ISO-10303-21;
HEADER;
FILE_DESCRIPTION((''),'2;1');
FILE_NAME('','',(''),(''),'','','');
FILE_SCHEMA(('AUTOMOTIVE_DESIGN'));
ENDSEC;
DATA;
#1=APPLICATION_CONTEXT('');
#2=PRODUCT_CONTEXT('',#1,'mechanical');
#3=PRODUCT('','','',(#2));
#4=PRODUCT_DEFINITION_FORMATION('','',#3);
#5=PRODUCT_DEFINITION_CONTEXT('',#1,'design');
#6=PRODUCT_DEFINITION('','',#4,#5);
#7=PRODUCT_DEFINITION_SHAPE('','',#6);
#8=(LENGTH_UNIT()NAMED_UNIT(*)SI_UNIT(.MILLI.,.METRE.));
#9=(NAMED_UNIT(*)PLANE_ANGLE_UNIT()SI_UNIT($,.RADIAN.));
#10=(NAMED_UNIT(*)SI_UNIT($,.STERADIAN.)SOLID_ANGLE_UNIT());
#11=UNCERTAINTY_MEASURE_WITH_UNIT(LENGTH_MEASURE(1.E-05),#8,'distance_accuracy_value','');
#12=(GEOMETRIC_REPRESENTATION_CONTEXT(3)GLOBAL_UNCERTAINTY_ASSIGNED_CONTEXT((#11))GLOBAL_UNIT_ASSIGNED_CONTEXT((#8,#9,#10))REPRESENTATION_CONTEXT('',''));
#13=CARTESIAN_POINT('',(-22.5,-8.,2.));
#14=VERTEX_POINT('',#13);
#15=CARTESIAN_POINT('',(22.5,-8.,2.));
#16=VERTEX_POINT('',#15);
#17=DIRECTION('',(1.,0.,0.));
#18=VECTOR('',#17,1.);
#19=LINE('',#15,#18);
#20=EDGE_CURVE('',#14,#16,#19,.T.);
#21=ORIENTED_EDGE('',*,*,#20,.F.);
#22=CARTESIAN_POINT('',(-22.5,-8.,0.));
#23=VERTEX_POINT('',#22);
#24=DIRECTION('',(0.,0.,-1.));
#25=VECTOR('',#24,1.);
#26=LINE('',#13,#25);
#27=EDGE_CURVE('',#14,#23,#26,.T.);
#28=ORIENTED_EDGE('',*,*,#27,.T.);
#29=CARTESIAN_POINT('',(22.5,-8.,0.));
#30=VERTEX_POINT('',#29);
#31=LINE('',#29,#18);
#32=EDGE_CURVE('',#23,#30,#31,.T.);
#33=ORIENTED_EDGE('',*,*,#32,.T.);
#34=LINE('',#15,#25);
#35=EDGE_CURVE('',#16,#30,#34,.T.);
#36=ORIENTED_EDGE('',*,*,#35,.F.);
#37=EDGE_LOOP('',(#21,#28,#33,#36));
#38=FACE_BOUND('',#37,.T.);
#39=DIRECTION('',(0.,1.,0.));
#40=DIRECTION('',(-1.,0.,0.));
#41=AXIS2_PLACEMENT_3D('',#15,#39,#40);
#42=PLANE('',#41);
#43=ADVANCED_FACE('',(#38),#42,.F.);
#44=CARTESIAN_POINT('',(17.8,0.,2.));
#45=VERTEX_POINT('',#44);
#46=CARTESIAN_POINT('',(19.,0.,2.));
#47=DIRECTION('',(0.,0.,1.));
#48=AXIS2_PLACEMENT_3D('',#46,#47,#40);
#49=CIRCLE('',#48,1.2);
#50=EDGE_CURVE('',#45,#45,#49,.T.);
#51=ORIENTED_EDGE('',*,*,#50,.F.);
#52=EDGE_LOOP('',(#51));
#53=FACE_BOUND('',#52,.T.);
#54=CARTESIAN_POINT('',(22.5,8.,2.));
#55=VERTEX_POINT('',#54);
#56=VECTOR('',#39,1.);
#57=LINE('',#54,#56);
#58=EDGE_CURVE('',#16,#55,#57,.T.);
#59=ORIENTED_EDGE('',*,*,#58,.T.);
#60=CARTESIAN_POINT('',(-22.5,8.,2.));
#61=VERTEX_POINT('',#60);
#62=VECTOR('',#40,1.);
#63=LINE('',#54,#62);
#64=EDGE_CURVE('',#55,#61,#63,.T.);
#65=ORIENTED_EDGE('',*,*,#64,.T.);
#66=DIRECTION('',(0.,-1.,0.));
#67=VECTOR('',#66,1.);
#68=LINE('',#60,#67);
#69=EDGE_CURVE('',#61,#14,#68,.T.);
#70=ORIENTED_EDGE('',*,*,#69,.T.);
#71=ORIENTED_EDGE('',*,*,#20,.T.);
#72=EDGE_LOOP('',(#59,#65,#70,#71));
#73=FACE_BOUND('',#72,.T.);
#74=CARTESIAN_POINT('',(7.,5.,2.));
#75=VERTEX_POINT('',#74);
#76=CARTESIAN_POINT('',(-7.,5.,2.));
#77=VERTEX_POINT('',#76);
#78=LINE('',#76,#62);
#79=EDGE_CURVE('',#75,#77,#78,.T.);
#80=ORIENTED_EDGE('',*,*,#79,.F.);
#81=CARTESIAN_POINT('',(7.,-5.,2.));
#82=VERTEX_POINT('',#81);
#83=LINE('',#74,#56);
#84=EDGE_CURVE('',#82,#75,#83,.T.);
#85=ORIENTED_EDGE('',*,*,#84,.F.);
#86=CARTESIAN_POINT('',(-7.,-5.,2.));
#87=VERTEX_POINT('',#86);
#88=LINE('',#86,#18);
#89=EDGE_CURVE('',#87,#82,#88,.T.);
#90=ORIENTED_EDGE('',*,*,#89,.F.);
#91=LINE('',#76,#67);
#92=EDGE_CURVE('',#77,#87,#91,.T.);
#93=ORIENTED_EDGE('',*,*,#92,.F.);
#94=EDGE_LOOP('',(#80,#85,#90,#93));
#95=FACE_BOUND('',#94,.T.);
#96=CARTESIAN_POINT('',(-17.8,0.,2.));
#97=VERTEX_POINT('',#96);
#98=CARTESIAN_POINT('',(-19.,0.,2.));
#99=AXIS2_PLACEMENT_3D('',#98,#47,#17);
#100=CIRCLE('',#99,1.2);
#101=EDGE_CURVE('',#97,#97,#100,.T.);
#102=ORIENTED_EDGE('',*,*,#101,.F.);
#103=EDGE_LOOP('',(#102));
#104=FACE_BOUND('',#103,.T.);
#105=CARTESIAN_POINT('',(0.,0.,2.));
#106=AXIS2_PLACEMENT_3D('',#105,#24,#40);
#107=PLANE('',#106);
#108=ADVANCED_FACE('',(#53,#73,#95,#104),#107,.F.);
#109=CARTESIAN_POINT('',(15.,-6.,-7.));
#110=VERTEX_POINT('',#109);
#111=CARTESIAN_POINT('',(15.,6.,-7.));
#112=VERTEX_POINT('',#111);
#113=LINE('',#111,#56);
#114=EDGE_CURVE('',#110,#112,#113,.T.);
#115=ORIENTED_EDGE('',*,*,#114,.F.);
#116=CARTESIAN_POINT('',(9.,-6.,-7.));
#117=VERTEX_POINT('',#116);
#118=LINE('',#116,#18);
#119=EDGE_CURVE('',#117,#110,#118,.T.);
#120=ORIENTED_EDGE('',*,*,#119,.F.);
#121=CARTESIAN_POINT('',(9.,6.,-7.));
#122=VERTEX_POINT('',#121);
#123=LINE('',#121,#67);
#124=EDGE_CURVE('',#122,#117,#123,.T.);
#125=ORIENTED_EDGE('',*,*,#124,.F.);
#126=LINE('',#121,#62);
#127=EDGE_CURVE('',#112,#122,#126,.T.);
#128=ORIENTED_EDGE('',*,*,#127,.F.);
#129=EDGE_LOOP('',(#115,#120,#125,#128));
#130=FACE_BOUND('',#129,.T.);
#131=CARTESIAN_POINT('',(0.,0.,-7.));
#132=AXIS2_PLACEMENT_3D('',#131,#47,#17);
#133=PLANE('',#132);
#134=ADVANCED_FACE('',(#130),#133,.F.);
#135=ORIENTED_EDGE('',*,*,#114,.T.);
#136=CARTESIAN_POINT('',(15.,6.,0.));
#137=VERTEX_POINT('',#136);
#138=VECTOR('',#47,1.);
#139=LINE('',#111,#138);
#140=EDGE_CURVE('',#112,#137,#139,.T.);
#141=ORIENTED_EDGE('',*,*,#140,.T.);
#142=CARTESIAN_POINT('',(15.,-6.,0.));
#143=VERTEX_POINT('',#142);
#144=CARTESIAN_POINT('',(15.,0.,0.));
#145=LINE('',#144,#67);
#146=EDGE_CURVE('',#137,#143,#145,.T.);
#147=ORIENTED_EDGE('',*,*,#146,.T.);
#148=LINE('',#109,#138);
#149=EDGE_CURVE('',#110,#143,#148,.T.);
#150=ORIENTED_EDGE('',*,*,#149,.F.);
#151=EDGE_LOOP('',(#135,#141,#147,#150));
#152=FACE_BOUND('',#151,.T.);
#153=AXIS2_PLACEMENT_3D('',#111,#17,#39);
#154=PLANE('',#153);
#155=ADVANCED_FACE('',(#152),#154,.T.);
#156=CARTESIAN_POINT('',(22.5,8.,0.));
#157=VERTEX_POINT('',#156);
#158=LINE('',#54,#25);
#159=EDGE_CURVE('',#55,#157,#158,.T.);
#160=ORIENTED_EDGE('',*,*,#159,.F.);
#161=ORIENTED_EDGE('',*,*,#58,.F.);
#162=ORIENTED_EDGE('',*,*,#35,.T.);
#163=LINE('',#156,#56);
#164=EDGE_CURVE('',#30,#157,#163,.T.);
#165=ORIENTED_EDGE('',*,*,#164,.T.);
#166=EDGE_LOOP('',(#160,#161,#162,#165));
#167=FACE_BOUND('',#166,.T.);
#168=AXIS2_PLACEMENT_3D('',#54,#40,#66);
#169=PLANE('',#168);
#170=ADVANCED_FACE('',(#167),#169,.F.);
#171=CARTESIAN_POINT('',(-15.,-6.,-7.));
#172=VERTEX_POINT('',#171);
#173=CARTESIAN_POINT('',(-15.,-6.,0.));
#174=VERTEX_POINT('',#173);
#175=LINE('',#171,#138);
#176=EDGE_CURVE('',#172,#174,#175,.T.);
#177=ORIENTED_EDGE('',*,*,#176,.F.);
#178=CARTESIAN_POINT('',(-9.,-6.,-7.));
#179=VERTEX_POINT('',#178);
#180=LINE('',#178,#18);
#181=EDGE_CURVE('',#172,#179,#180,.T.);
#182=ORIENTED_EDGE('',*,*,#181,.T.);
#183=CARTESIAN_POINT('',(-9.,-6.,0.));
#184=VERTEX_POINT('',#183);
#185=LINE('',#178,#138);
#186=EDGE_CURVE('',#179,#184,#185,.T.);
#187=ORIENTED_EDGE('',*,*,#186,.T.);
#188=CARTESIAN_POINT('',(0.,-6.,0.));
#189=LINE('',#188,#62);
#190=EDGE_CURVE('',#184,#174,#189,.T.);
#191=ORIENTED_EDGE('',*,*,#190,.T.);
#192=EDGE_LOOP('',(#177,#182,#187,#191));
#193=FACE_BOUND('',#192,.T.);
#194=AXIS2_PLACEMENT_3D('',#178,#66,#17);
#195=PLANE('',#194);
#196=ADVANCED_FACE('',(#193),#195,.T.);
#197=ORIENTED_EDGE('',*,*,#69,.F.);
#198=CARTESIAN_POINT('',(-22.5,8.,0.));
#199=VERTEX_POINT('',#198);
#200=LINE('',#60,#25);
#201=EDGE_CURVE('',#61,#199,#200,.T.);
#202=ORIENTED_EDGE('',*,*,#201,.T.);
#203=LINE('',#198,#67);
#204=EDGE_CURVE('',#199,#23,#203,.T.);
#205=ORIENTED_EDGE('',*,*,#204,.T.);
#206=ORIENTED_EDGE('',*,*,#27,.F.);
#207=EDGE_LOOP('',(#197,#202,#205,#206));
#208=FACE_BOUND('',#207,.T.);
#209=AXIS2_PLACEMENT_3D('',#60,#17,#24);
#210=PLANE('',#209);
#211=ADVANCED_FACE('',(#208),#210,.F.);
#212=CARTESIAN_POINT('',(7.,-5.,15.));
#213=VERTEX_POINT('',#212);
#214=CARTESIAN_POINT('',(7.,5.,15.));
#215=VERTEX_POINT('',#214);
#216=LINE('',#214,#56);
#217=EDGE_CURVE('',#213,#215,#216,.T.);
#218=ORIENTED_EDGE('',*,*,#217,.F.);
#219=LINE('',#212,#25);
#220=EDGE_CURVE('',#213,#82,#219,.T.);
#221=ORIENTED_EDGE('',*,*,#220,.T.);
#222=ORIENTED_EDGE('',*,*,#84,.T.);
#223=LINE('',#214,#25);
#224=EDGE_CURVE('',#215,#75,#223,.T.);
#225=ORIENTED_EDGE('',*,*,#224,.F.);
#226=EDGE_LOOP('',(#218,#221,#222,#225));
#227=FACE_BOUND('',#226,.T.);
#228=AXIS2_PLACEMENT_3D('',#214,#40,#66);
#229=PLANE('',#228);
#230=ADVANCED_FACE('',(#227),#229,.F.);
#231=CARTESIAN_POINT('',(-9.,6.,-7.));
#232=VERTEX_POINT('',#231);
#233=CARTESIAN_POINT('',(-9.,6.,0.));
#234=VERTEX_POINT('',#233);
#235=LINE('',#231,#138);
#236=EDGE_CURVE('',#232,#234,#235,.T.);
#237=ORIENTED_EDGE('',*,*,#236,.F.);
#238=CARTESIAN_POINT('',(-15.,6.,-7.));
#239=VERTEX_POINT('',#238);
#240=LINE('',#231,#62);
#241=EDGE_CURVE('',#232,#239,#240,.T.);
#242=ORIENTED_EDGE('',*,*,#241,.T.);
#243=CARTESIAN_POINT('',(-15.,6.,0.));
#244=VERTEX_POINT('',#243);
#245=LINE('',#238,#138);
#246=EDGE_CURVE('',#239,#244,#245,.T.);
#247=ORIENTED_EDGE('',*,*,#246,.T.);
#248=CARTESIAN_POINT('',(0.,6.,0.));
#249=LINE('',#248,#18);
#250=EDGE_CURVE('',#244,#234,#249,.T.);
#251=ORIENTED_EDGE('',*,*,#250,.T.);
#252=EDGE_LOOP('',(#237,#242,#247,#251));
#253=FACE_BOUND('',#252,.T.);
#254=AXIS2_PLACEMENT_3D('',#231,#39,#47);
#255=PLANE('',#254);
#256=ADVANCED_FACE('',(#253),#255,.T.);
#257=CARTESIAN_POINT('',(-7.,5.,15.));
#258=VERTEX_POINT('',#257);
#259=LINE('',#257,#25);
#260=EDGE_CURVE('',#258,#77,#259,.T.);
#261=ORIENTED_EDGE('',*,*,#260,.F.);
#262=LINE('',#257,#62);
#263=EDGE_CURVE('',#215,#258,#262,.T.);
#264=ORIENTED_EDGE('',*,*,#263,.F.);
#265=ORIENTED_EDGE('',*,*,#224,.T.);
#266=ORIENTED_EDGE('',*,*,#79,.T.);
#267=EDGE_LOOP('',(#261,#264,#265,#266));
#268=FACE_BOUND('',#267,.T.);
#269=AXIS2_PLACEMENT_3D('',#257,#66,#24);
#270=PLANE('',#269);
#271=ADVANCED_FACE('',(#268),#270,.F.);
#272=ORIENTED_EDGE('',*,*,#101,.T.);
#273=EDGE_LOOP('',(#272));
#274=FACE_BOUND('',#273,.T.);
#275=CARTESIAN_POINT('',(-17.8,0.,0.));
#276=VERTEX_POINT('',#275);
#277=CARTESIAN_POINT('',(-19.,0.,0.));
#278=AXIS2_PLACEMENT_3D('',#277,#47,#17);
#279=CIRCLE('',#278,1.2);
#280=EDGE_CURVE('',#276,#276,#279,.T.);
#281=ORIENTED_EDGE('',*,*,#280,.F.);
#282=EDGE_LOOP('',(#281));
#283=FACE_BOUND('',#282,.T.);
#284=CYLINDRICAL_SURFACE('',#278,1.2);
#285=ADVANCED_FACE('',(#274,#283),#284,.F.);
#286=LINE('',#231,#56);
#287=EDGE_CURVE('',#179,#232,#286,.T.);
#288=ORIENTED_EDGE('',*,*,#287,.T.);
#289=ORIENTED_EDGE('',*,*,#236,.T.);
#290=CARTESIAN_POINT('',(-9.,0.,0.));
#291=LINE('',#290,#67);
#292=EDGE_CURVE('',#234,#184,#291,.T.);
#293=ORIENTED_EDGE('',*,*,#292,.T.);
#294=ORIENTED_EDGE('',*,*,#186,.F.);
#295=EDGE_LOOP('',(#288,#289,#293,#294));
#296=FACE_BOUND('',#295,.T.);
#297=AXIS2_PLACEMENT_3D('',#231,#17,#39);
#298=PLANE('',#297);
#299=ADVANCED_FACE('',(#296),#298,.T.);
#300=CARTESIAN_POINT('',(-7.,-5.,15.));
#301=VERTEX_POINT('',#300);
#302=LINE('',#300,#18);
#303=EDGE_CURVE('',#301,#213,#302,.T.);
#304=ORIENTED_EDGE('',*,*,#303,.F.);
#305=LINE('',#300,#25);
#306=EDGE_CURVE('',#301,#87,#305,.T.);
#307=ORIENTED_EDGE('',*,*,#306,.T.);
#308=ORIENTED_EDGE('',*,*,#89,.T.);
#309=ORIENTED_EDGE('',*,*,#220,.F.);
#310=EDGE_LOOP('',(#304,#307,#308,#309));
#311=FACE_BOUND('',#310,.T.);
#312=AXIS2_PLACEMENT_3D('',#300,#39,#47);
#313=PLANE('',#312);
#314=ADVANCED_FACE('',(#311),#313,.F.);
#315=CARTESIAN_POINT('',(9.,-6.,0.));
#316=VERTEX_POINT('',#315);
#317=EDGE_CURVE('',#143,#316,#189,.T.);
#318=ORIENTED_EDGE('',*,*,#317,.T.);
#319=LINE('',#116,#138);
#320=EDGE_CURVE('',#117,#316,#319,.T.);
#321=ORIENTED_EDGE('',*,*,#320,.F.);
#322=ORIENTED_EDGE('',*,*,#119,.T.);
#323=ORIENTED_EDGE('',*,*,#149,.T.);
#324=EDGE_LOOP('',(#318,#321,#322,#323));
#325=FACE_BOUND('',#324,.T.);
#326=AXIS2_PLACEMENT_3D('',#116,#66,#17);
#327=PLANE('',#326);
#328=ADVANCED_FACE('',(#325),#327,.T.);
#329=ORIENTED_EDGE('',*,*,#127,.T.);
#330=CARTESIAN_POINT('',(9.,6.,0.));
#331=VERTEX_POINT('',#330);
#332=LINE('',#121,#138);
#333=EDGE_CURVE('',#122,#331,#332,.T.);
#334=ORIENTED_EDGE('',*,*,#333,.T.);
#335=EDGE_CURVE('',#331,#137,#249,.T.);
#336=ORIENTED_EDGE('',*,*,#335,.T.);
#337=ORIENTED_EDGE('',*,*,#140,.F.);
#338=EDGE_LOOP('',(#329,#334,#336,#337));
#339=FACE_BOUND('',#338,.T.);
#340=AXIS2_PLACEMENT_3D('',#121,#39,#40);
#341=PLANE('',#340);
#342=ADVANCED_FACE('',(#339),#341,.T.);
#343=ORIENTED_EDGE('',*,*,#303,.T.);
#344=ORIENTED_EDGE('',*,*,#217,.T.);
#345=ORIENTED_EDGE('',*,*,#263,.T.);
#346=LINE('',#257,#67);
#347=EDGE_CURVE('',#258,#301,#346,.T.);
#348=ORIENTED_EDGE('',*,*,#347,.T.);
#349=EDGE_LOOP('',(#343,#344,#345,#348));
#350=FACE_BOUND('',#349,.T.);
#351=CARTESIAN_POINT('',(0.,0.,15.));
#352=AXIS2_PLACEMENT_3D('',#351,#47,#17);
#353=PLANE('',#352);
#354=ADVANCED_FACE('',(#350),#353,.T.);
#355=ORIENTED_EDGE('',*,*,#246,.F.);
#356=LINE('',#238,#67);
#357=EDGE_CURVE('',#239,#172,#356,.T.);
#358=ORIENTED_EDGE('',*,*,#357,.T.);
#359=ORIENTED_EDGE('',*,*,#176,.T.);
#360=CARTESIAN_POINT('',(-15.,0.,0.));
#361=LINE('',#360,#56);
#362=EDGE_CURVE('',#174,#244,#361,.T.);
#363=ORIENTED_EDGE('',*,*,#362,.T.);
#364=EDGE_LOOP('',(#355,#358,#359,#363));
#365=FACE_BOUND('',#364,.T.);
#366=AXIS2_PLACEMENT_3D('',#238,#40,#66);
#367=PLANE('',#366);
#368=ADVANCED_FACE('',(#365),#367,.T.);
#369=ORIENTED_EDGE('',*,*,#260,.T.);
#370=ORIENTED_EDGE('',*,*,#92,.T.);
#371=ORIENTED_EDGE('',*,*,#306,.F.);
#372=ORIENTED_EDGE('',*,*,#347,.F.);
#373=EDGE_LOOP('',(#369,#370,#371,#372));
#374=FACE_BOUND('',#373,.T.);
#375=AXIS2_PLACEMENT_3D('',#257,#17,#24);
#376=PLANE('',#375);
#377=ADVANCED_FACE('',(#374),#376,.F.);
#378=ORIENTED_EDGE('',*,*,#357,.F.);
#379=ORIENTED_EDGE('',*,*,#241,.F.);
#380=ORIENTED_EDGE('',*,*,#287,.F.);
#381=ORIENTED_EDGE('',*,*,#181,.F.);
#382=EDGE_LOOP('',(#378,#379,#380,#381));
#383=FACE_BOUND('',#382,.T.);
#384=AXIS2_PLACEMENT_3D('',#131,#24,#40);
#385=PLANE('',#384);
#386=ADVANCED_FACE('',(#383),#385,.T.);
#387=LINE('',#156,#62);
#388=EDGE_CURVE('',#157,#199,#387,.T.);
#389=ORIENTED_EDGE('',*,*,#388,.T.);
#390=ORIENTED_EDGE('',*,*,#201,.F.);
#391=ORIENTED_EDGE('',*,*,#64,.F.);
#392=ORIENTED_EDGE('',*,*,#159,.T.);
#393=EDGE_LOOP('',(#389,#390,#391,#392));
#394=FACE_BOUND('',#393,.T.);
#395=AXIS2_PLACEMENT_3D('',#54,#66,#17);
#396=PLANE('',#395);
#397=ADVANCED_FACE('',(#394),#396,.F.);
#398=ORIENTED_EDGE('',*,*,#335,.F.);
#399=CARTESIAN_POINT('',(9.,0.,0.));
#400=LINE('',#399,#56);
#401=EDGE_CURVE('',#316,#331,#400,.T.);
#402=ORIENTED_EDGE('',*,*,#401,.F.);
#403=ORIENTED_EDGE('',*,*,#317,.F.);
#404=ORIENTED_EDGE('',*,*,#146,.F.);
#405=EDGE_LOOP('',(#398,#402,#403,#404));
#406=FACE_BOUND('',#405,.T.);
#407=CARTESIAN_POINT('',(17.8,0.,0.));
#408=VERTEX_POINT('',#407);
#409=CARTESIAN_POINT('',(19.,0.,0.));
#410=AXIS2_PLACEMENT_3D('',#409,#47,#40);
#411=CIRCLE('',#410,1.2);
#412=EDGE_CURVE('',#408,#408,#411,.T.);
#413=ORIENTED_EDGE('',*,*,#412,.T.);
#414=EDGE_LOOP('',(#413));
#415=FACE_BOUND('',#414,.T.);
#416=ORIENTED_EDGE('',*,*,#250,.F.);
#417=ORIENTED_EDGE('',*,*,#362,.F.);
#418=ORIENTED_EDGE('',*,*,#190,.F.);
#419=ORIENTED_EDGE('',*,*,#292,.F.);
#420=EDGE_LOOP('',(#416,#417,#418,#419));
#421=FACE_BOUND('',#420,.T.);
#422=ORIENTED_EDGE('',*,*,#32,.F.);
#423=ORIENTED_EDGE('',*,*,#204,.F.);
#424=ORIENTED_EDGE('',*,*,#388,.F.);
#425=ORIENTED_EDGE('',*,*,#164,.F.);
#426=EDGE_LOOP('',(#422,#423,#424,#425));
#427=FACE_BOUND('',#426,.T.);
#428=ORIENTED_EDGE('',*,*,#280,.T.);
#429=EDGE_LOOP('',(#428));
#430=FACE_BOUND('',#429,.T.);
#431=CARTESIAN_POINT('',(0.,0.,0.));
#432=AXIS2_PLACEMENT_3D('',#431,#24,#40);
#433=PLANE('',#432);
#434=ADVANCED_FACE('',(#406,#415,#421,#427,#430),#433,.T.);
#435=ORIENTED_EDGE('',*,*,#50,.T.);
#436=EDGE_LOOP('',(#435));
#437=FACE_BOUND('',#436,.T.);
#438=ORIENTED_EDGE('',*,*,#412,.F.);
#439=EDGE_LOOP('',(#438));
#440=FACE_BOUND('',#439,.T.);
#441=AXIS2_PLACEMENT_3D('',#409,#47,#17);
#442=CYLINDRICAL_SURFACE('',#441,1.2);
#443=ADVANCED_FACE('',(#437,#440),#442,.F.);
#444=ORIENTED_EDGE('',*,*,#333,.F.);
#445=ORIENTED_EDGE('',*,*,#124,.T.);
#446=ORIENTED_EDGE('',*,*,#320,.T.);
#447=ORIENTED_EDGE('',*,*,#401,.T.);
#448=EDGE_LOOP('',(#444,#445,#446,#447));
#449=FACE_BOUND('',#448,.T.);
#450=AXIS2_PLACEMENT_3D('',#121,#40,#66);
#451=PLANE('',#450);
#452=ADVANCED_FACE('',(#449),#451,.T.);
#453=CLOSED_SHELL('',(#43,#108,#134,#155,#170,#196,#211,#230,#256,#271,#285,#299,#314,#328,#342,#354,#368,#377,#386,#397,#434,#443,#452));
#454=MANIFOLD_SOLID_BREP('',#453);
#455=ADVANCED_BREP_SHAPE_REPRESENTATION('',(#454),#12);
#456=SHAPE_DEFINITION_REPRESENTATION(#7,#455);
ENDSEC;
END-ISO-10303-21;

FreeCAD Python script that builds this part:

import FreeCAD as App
import Part
import Sketcher

doc = App.newDocument("Part")
body = doc.addObject("PartDesign::Body", "Body")

# Sketch on XY plane
sketch1 = body.newObject("Sketcher::SketchObject", "Sketch")
sketch1.AttachmentSupport = (doc.getObject("XY_Plane"), [""])
sketch1.MapMode = "FlatFace"
sketch1.addGeometry(Part.LineSegment(App.Vector(-22, 8, 0), App.Vector(-22, -8, 0)), False)
sketch1.addGeometry(Part.LineSegment(App.Vector(-22, -8, 0), App.Vector(22, -8, 0)), False)
sketch1.addGeometry(Part.LineSegment(App.Vector(22, -8, 0), App.Vector(22, 8, 0)), False)
sketch1.addGeometry(Part.LineSegment(App.Vector(22, 8, 0), App.Vector(-22, 8, 0)), False)
sketch1.addConstraint(Sketcher.Constraint("Coincident", 0, 2, 1, 1))
sketch1.addConstraint(Sketcher.Constraint("Coincident", 1, 2, 2, 1))
sketch1.addConstraint(Sketcher.Constraint("Coincident", 2, 2, 3, 1))
sketch1.addConstraint(Sketcher.Constraint("Coincident", 3, 2, 0, 1))
sketch1.addConstraint(Sketcher.Constraint("Vertical", 0))
sketch1.addConstraint(Sketcher.Constraint("Horizontal", 1))
sketch1.addConstraint(Sketcher.Constraint("Vertical", 2))
sketch1.addConstraint(Sketcher.Constraint("Horizontal", 3))
sketch1.addConstraint(Sketcher.Constraint("Symmetric", 0, 2, 2, 2, -1, 1))
sketch1.addConstraint(Sketcher.Constraint("DistanceX", 1, 1, 1, 2, 45.0))
sketch1.addConstraint(Sketcher.Constraint("DistanceY", 0, 2, 0, 1, 16.0))
pad1 = body.newObject("PartDesign::Pad", "Pad")
pad1.Profile = sketch1
pad1.Length = 2

# Sketch on XY plane
sketch2 = body.newObject("Sketcher::SketchObject", "Sketch001")
sketch2.AttachmentSupport = (doc.getObject("XY_Plane"), [""])
sketch2.MapMode = "FlatFace"
sketch2.AttachmentOffset = App.Placement(App.Vector(0, 0, 2), App.Rotation())
sketch2.addGeometry(Part.Circle(App.Vector(-19, 0, 0), App.Vector(0, 0, 1), 1.2), False)
sketch2.addGeometry(Part.Circle(App.Vector(19, 0, 0), App.Vector(0, 0, 1), 1.2), False)
sketch2.addConstraint(Sketcher.Constraint("Equal", 0, 1))
sketch2.addConstraint(Sketcher.Constraint("Symmetric", 0, 3, 1, 3, -1, 1))
sketch2.addConstraint(Sketcher.Constraint("PointOnObject", 0, 3, -1))
sketch2.addConstraint(Sketcher.Constraint("Diameter", 0, 2.4))
sketch2.addConstraint(Sketcher.Constraint("DistanceX", 0, 3, -1, 1, 19.0))
pocket1 = body.newObject("PartDesign::Pocket", "Pocket")
pocket1.Profile = sketch2
pocket1.Length = 2

# Sketch on XY plane
sketch3 = body.newObject("Sketcher::SketchObject", "Sketch002")
sketch3.AttachmentSupport = (doc.getObject("XY_Plane"), [""])
sketch3.MapMode = "FlatFace"
sketch3.AttachmentOffset = App.Placement(App.Vector(0, 0, 2), App.Rotation())
sketch3.addGeometry(Part.LineSegment(App.Vector(-7, 5, 0), App.Vector(-7, -5, 0)), False)
sketch3.addGeometry(Part.LineSegment(App.Vector(-7, -5, 0), App.Vector(7, -5, 0)), False)
sketch3.addGeometry(Part.LineSegment(App.Vector(7, -5, 0), App.Vector(7, 5, 0)), False)
sketch3.addGeometry(Part.LineSegment(App.Vector(7, 5, 0), App.Vector(-7, 5, 0)), False)
sketch3.addConstraint(Sketcher.Constraint("Coincident", 0, 2, 1, 1))
sketch3.addConstraint(Sketcher.Constraint("Coincident", 1, 2, 2, 1))
sketch3.addConstraint(Sketcher.Constraint("Coincident", 2, 2, 3, 1))
sketch3.addConstraint(Sketcher.Constraint("Coincident", 3, 2, 0, 1))
sketch3.addConstraint(Sketcher.Constraint("Vertical", 0))
sketch3.addConstraint(Sketcher.Constraint("Horizontal", 1))
sketch3.addConstraint(Sketcher.Constraint("Vertical", 2))
sketch3.addConstraint(Sketcher.Constraint("Horizontal", 3))
sketch3.addConstraint(Sketcher.Constraint("Symmetric", 0, 2, 2, 2, -1, 1))
sketch3.addConstraint(Sketcher.Constraint("DistanceX", 1, 1, 1, 2, 14.0))
sketch3.addConstraint(Sketcher.Constraint("DistanceY", 0, 2, 0, 1, 10.0))
pad2 = body.newObject("PartDesign::Pad", "Pad001")
pad2.Profile = sketch3
pad2.Length = 13

# Sketch on XY plane
sketch4 = body.newObject("Sketcher::SketchObject", "Sketch003")
sketch4.AttachmentSupport = (doc.getObject("XY_Plane"), [""])
sketch4.MapMode = "FlatFace"
sketch4.AttachmentOffset = App.Placement(App.Vector(0, 0, 2), App.Rotation())
sketch4.addGeometry(Part.LineSegment(App.Vector(-15, 6, 0), App.Vector(-15, -6, 0)), False)
sketch4.addGeometry(Part.LineSegment(App.Vector(-15, -6, 0), App.Vector(-9, -6, 0)), False)
sketch4.addGeometry(Part.LineSegment(App.Vector(-9, -6, 0), App.Vector(-9, 6, 0)), False)
sketch4.addGeometry(Part.LineSegment(App.Vector(-9, 6, 0), App.Vector(-15, 6, 0)), False)
sketch4.addGeometry(Part.LineSegment(App.Vector(9, 6, 0), App.Vector(9, -6, 0)), False)
sketch4.addGeometry(Part.LineSegment(App.Vector(9, -6, 0), App.Vector(15, -6, 0)), False)
sketch4.addGeometry(Part.LineSegment(App.Vector(15, -6, 0), App.Vector(15, 6, 0)), False)
sketch4.addGeometry(Part.LineSegment(App.Vector(15, 6, 0), App.Vector(9, 6, 0)), False)
sketch4.addConstraint(Sketcher.Constraint("Coincident", 0, 2, 1, 1))
sketch4.addConstraint(Sketcher.Constraint("Coincident", 1, 2, 2, 1))
sketch4.addConstraint(Sketcher.Constraint("Coincident", 2, 2, 3, 1))
sketch4.addConstraint(Sketcher.Constraint("Coincident", 3, 2, 0, 1))
sketch4.addConstraint(Sketcher.Constraint("Coincident", 4, 2, 5, 1))
sketch4.addConstraint(Sketcher.Constraint("Coincident", 5, 2, 6, 1))
sketch4.addConstraint(Sketcher.Constraint("Coincident", 6, 2, 7, 1))
sketch4.addConstraint(Sketcher.Constraint("Coincident", 7, 2, 4, 1))
sketch4.addConstraint(Sketcher.Constraint("Vertical", 0))
sketch4.addConstraint(Sketcher.Constraint("Horizontal", 1))
sketch4.addConstraint(Sketcher.Constraint("Vertical", 2))
sketch4.addConstraint(Sketcher.Constraint("Horizontal", 3))
sketch4.addConstraint(Sketcher.Constraint("Vertical", 4))
sketch4.addConstraint(Sketcher.Constraint("Horizontal", 5))
sketch4.addConstraint(Sketcher.Constraint("Vertical", 6))
sketch4.addConstraint(Sketcher.Constraint("Horizontal", 7))
sketch4.addConstraint(Sketcher.Constraint("Symmetric", 2, 2, 4, 2, -1, 1))
sketch4.addConstraint(Sketcher.Constraint("Symmetric", 0, 2, 6, 2, -1, 1))
sketch4.addConstraint(Sketcher.Constraint("Horizontal", 1, 2, 4, 2))
sketch4.addConstraint(Sketcher.Constraint("DistanceX", 1, 1, 1, 2, 6.0))
sketch4.addConstraint(Sketcher.Constraint("DistanceY", 0, 2, 0, 1, 12.0))
sketch4.addConstraint(Sketcher.Constraint("DistanceX", 0, 2, -1, 1, 15.0))
pad3 = body.newObject("PartDesign::Pad", "Pad002")
pad3.Profile = sketch4
pad3.Length = 9
pad3.Reversed = True

doc.recompute()
